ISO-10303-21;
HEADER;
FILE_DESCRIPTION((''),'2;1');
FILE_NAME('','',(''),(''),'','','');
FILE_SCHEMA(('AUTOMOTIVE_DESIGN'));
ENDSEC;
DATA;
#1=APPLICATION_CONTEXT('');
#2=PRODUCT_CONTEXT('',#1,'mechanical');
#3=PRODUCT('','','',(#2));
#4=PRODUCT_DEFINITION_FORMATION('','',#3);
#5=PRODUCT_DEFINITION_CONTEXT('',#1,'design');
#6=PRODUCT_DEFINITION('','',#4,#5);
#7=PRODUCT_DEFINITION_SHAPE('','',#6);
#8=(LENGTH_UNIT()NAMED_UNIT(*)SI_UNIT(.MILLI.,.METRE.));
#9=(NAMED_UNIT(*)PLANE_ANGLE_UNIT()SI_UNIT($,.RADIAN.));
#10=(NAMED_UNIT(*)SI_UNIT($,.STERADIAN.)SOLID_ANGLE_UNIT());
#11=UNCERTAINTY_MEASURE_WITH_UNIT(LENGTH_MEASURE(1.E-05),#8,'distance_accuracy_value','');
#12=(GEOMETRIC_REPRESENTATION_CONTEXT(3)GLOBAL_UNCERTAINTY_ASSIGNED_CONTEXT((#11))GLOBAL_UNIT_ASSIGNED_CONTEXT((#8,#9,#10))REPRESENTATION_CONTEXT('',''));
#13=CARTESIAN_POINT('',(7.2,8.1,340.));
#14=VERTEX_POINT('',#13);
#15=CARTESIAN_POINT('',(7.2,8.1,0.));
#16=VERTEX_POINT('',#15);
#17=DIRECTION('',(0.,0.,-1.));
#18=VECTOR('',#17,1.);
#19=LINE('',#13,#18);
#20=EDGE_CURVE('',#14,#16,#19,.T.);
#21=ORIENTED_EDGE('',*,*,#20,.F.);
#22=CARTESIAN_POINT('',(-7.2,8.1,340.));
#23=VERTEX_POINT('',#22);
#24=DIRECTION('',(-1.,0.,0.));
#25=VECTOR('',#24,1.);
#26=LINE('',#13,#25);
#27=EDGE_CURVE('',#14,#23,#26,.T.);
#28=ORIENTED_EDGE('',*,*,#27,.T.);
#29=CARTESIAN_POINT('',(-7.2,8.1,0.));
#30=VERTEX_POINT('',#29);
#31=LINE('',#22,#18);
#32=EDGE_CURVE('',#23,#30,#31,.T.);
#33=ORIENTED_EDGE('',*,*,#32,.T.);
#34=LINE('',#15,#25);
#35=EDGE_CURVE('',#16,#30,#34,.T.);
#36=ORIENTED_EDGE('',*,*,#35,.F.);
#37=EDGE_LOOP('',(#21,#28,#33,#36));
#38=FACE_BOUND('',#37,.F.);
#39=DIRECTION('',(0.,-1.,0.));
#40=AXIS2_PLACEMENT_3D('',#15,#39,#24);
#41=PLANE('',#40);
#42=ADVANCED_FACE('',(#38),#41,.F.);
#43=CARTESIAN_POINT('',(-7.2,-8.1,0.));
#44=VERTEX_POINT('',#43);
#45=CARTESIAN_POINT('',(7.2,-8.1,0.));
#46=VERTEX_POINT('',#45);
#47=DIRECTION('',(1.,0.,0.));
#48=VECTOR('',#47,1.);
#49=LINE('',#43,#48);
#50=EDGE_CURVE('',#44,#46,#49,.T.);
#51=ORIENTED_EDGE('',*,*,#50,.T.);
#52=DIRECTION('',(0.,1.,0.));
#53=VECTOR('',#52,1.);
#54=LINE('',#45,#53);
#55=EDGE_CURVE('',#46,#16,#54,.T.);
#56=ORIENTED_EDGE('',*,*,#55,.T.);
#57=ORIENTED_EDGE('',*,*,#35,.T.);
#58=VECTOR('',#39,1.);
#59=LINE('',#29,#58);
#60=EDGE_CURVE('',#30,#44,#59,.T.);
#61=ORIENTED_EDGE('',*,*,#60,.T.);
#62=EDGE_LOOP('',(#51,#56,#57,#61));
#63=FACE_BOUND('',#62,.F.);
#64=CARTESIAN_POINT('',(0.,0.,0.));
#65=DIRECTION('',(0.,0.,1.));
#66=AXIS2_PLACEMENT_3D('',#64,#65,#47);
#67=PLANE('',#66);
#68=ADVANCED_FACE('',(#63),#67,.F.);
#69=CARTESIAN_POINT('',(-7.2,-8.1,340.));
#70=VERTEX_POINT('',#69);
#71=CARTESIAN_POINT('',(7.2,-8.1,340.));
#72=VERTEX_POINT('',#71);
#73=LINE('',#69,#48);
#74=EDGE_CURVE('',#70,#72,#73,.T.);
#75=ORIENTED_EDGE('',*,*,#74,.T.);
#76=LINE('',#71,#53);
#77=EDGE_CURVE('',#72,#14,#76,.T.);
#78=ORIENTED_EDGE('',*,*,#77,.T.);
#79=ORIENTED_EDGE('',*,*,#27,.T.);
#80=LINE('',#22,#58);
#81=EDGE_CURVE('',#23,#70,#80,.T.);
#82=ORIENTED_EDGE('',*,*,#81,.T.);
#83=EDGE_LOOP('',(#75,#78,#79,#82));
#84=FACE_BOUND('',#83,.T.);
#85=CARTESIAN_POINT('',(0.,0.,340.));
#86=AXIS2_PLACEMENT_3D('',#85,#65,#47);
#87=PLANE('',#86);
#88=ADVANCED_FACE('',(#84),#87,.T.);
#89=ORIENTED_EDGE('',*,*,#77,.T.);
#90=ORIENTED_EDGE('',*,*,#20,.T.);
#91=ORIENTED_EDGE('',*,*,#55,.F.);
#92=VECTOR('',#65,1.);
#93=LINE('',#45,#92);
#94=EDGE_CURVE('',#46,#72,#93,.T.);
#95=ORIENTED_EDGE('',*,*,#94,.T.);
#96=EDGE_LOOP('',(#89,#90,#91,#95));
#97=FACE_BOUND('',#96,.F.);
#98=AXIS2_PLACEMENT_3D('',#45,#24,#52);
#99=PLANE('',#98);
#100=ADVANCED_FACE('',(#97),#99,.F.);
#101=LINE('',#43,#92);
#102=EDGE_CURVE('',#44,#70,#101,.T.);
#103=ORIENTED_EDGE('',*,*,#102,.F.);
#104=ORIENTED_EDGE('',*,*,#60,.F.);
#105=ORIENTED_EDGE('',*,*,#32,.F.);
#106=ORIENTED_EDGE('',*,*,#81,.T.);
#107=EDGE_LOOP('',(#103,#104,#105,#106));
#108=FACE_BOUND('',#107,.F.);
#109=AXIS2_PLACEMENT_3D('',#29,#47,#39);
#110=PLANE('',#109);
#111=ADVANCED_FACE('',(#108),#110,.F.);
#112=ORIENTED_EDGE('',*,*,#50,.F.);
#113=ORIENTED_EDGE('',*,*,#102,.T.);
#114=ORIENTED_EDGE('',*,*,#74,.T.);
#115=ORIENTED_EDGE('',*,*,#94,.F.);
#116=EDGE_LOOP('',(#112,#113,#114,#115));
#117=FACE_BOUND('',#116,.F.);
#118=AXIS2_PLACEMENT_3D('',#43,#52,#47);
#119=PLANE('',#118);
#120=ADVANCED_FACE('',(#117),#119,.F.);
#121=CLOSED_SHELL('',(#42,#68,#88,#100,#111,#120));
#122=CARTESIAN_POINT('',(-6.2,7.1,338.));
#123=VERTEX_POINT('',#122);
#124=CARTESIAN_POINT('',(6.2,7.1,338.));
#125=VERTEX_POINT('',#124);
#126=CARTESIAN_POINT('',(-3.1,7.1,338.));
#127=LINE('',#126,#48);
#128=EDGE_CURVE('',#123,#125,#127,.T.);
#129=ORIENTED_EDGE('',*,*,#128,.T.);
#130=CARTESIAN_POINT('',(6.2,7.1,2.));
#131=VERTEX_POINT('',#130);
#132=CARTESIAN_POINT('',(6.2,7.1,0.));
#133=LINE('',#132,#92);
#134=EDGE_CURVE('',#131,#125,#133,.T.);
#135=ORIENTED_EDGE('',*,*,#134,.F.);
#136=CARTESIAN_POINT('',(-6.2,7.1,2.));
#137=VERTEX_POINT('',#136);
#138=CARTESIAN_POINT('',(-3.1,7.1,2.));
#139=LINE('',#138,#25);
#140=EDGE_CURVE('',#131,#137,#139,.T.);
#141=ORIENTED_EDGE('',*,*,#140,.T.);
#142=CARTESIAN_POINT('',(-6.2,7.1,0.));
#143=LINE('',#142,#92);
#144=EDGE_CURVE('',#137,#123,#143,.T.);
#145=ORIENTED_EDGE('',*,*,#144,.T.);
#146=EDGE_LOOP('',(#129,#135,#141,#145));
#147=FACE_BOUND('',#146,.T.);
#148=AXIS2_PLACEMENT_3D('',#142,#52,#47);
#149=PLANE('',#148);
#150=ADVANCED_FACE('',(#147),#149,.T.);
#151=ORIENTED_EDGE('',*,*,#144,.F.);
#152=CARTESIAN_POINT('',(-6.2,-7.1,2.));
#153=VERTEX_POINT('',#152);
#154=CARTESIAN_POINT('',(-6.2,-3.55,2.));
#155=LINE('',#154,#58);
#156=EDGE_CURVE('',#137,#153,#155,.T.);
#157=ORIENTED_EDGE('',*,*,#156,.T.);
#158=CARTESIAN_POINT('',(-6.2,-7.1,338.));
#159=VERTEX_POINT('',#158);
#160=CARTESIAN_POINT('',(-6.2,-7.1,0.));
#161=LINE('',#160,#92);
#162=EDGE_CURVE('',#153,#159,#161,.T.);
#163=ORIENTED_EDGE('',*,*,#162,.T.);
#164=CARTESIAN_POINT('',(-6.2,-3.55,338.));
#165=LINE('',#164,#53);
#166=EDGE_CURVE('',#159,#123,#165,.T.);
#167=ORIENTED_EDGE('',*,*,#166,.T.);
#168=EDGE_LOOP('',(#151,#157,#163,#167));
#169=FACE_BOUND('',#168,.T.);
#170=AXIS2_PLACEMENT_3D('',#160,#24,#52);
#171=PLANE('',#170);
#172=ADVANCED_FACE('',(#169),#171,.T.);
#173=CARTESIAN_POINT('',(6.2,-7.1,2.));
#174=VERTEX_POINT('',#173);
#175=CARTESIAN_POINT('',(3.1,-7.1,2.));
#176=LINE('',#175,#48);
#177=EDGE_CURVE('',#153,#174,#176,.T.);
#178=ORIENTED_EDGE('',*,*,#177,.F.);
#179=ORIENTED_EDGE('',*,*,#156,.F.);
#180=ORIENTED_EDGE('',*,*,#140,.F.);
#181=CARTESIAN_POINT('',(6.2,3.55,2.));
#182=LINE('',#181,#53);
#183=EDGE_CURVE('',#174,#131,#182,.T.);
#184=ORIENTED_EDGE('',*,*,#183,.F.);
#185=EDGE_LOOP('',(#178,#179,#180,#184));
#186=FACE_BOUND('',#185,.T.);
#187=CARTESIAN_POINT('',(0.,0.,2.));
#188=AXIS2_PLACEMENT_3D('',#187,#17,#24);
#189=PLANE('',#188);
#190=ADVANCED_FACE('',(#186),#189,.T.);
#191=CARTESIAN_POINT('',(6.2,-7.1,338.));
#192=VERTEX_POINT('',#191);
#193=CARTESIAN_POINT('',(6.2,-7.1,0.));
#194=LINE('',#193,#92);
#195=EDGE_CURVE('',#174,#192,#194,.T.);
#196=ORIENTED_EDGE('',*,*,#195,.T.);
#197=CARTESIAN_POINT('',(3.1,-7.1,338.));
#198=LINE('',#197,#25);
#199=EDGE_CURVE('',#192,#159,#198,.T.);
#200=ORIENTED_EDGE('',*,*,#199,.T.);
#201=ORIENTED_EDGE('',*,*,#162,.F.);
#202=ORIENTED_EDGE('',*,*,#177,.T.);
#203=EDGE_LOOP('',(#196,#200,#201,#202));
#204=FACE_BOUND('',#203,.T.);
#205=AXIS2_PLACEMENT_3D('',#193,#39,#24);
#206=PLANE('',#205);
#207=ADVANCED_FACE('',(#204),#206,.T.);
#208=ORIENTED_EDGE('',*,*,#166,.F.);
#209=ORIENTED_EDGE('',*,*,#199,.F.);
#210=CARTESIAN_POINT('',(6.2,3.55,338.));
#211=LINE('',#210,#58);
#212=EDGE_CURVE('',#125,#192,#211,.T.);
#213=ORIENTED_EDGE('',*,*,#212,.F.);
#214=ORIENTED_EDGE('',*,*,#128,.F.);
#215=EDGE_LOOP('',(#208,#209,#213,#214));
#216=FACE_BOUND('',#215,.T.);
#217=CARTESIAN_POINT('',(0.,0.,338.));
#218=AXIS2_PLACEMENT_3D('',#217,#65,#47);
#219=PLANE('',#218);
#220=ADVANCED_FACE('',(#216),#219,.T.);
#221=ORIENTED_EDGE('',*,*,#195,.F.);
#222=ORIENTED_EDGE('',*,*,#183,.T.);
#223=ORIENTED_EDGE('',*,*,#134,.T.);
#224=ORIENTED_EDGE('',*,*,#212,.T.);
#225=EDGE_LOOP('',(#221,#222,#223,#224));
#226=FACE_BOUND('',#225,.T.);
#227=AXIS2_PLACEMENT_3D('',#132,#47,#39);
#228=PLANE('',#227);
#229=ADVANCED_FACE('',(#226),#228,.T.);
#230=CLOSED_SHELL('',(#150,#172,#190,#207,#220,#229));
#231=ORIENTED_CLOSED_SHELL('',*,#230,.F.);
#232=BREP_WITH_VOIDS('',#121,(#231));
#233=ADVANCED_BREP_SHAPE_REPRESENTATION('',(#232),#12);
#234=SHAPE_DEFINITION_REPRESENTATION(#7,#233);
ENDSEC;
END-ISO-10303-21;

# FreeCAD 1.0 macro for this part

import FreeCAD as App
import Part
import Sketcher

doc = App.newDocument("Part")
body = doc.addObject("PartDesign::Body", "Body")

# Sketch on XY plane
sketch1 = body.newObject("Sketcher::SketchObject", "Sketch")
sketch1.AttachmentSupport = (doc.getObject("XY_Plane"), [""])
sketch1.MapMode = "FlatFace"
sketch1.addGeometry([
    Part.LineSegment(App.Vector(-7, 8, 0), App.Vector(-7, -8, 0)),  # 0
    Part.LineSegment(App.Vector(-7, -8, 0), App.Vector(7, -8, 0)),  # 1
    Part.LineSegment(App.Vector(7, -8, 0), App.Vector(7, 8, 0)),  # 2
    Part.LineSegment(App.Vector(7, 8, 0), App.Vector(-7, 8, 0)),  # 3
    Part.LineSegment(App.Vector(-6, -7, 0), App.Vector(-6, 7, 0)),  # 4
    Part.LineSegment(App.Vector(-6, 7, 0), App.Vector(6, 7, 0)),  # 5
    Part.LineSegment(App.Vector(6, 7, 0), App.Vector(6, -7, 0)),  # 6
    Part.LineSegment(App.Vector(6, -7, 0), App.Vector(-6, -7, 0)),  # 7
], False)
sketch1.addConstraint([
    Sketcher.Constraint("Coincident", 0, 2, 1, 1),
    Sketcher.Constraint("Coincident", 1, 2, 2, 1),
    Sketcher.Constraint("Coincident", 2, 2, 3, 1),
    Sketcher.Constraint("Coincident", 3, 2, 0, 1),
    Sketcher.Constraint("Coincident", 4, 2, 5, 1),
    Sketcher.Constraint("Coincident", 5, 2, 6, 1),
    Sketcher.Constraint("Coincident", 6, 2, 7, 1),
    Sketcher.Constraint("Coincident", 7, 2, 4, 1),
    Sketcher.Constraint("Vertical", 0),
    Sketcher.Constraint("Horizontal", 1),
    Sketcher.Constraint("Vertical", 2),
    Sketcher.Constraint("Horizontal", 3),
    Sketcher.Constraint("Vertical", 4),
    Sketcher.Constraint("Horizontal", 5),
    Sketcher.Constraint("Vertical", 6),
    Sketcher.Constraint("Horizontal", 7),
    Sketcher.Constraint("Symmetric", 0, 2, 2, 2, -1, 1),
    Sketcher.Constraint("Symmetric", 4, 2, 6, 2, -1, 1),
    Sketcher.Constraint("DistanceX", 3, 2, 4, 2, 1.0),
    Sketcher.Constraint("DistanceY", 4, 2, 3, 2, 1.0),
    Sketcher.Constraint("DistanceX", 1, 1, 1, 2, 14.4),
    Sketcher.Constraint("DistanceY", 0, 2, 0, 1, 16.2),
])
pad1 = body.newObject("PartDesign::Pad", "Pad")
pad1.Profile = sketch1
pad1.Length = 340

# Sketch on XY plane
sketch2 = body.newObject("Sketcher::SketchObject", "Sketch001")
sketch2.AttachmentSupport = (doc.getObject("XY_Plane"), [""])
sketch2.MapMode = "FlatFace"
sketch2.AttachmentOffset = App.Placement(App.Vector(0, 0, 340), App.Rotation())
sketch2.addGeometry([
    Part.LineSegment(App.Vector(7, 8, 0), App.Vector(-7, 8, 0)),
    Part.LineSegment(App.Vector(-7, 8, 0), App.Vector(-7, -8, 0)),
    Part.LineSegment(App.Vector(-7, -8, 0), App.Vector(7, -8, 0)),
    Part.LineSegment(App.Vector(7, -8, 0), App.Vector(7, 8, 0)),
], False)
sketch2.addConstraint([
    Sketcher.Constraint("Coincident", 0, 2, 1, 1),
    Sketcher.Constraint("Coincident", 1, 2, 2, 1),
    Sketcher.Constraint("Coincident", 2, 2, 3, 1),
    Sketcher.Constraint("Coincident", 3, 2, 0, 1),
    Sketcher.Constraint("Horizontal", 0),
    Sketcher.Constraint("Vertical", 1),
    Sketcher.Constraint("Horizontal", 2),
    Sketcher.Constraint("Vertical", 3),
    Sketcher.Constraint("Symmetric", 0, 2, 2, 2, -1, 1),
    Sketcher.Constraint("DistanceX", 0, 2, 0, 1, 14.4),
    Sketcher.Constraint("DistanceY", 1, 2, 1, 1, 16.2),
])
pad2 = body.newObject("PartDesign::Pad", "Pad001")
pad2.Profile = sketch2
pad2.Length = 2
pad2.Reversed = True

# Sketch on XY plane
sketch3 = body.newObject("Sketcher::SketchObject", "Sketch002")
sketch3.AttachmentSupport = (doc.getObject("XY_Plane"), [""])
sketch3.MapMode = "FlatFace"
sketch3.addGeometry([
    Part.LineSegment(App.Vector(7, 8, 0), App.Vector(7, -8, 0)),
    Part.LineSegment(App.Vector(7, -8, 0), App.Vector(-7, -8, 0)),
    Part.LineSegment(App.Vector(-7, -8, 0), App.Vector(-7, 8, 0)),
    Part.LineSegment(App.Vector(-7, 8, 0), App.Vector(7, 8, 0)),
], False)
sketch3.addConstraint([
    Sketcher.Constraint("Coincident", 0, 2, 1, 1),
    Sketcher.Constraint("Coincident", 1, 2, 2, 1),
    Sketcher.Constraint("Coincident", 2, 2, 3, 1),
    Sketcher.Constraint("Coincident", 3, 2, 0, 1),
    Sketcher.Constraint("Vertical", 0),
    Sketcher.Constraint("Horizontal", 1),
    Sketcher.Constraint("Vertical", 2),
    Sketcher.Constraint("Horizontal", 3),
    Sketcher.Constraint("Symmetric", 0, 2, 2, 2, -1, 1),
    Sketcher.Constraint("DistanceX", 1, 2, 1, 1, 14.4),
    Sketcher.Constraint("DistanceY", 0, 2, 0, 1, 16.2),
])
pad3 = body.newObject("PartDesign::Pad", "Pad002")
pad3.Profile = sketch3
pad3.Length = 2

doc.recompute()
